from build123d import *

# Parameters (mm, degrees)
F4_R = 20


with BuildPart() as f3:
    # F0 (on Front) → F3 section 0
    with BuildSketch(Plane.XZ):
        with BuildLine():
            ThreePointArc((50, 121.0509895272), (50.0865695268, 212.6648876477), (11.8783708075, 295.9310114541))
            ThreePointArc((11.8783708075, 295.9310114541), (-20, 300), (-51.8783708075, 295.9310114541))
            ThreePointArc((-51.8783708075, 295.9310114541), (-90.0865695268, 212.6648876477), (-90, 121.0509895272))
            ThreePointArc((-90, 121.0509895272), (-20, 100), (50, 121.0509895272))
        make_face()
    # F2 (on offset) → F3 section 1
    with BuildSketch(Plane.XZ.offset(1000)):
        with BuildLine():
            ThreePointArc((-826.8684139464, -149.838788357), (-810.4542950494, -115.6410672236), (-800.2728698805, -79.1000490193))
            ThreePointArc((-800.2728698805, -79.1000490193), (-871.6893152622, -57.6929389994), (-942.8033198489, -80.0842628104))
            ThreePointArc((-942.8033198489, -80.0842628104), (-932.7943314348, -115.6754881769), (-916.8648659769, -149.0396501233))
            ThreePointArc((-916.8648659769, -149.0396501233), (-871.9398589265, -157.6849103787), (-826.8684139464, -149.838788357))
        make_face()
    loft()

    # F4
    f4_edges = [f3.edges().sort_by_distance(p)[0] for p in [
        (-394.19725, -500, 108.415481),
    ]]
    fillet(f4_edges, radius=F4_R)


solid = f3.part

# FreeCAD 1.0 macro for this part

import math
import FreeCAD as App
import Part
import Sketcher


def edges_at(feature, points):
    """Names of the edges that pass closest to the given points."""
    edges = feature.Shape.Edges
    near = lambda p: min(range(len(edges)), key=lambda i: edges[i].distToShape(Part.Vertex(*p))[0])
    return sorted({f"Edge{near(p) + 1}" for p in points})

doc = App.newDocument("Part")
body = doc.addObject("PartDesign::Body", "Body")

sketch1 = body.newObject("Sketcher::SketchObject", "Sketch")
sketch1.AttachmentSupport = (doc.getObject("XZ_Plane"), [""])
sketch1.MapMode = "FlatFace"
sketch1.addGeometry(Part.ArcOfCircle(Part.Circle(App.Vector(-159.142477, 167.055606, 0), App.Vector(0, 0, 1), 214.142477), math.radians(-12.40566), math.radians(37.000417)), False)
sketch1.addGeometry(Part.ArcOfCircle(Part.Circle(App.Vector(-20, 173.090428, 0), App.Vector(0, 0, 1), 126.909572), math.radians(75.452079), math.radians(104.547921)), False)
sketch1.addGeometry(Part.ArcOfCircle(Part.Circle(App.Vector(119.142477, 167.055606, 0), App.Vector(0, 0, 1), 214.142477), math.radians(142.999583), math.radians(192.40566)), False)
sketch1.addGeometry(Part.ArcOfCircle(Part.Circle(App.Vector(-20, 226.909572, 0), App.Vector(0, 0, 1), 126.909572), math.radians(-123.475052), math.radians(-56.524948)), False)
sketch1.addConstraint(Sketcher.Constraint("Coincident", 0, 2, 1, 1))
sketch1.addConstraint(Sketcher.Constraint("Coincident", 1, 2, 2, 1))
sketch1.addConstraint(Sketcher.Constraint("Coincident", 2, 2, 3, 1))
sketch1.addConstraint(Sketcher.Constraint("Coincident", 3, 2, 0, 1))
sketch1.addConstraint(Sketcher.Constraint("Equal", 0, 2))
sketch1.addConstraint(Sketcher.Constraint("Equal", 1, 3))
sketch1.addConstraint(Sketcher.Constraint("Horizontal", 0, 3, 2, 3))
sketch1.addConstraint(Sketcher.Constraint("Horizontal", 0, 2, 1, 2))
sketch1.addConstraint(Sketcher.Constraint("Horizontal", 2, 2, 3, 2))
sketch1.addConstraint(Sketcher.Constraint("DistanceX", 1, 3, -1, 1, 20.0))
sketch1.addConstraint(Sketcher.Constraint("DistanceX", 2, 2, -1, 1, 90.0))
sketch1.addConstraint(Sketcher.Constraint("Radius", 0, 214.142477))
sketch1.addConstraint(Sketcher.Constraint("Radius", 1, 126.909572))
sketch1.addConstraint(Sketcher.Constraint("DistanceX", -1, 1, 0, 2, 11.878371))
sketch1.addConstraint(Sketcher.Constraint("DistanceY", -1, 1, 0, 2, 295.931011))
sketch1.addConstraint(Sketcher.Constraint("DistanceY", -1, 1, 2, 2, 121.05099))

sketch2 = body.newObject("Sketcher::SketchObject", "Sketch001")
sketch2.AttachmentSupport = (doc.getObject("XZ_Plane"), [""])
sketch2.MapMode = "FlatFace"
sketch2.AttachmentOffset = App.Placement(App.Vector(0, 0, 1000), App.Rotation())
sketch2.addGeometry(Part.ArcOfCircle(Part.Circle(App.Vector(-1012.727017, -39.592877, 0), App.Vector(0, 0, 1), 216.096232), math.radians(-30.675184), math.radians(-10.534184)), False)
sketch2.addGeometry(Part.ArcOfCircle(Part.Circle(App.Vector(-870.812989, -184.599486, 0), App.Vector(0, 0, 1), 126.909572), math.radians(56.232113), math.radians(124.559162)), False)
sketch2.addGeometry(Part.ArcOfCircle(Part.Circle(App.Vector(-730.534554, -39.592877, 0), App.Vector(0, 0, 1), 216.096232), math.radians(-169.200273), math.radians(-149.570859)), False)
sketch2.addGeometry(Part.ArcOfCircle(Part.Circle(App.Vector(-870.812989, -30.780341, 0), App.Vector(0, 0, 1), 126.909572), math.radians(-111.276655), math.radians(-69.740853)), False)
sketch2.addConstraint(Sketcher.Constraint("Coincident", 0, 2, 1, 1))
sketch2.addConstraint(Sketcher.Constraint("Coincident", 1, 2, 2, 1))
sketch2.addConstraint(Sketcher.Constraint("Coincident", 2, 2, 3, 1))
sketch2.addConstraint(Sketcher.Constraint("Coincident", 3, 2, 0, 1))
sketch2.addConstraint(Sketcher.Constraint("Equal", 0, 2))
sketch2.addConstraint(Sketcher.Constraint("Equal", 1, 3))
sketch2.addConstraint(Sketcher.Constraint("Horizontal", 0, 3, 2, 3))
sketch2.addConstraint(Sketcher.Constraint("Vertical", 1, 3, 3, 3))
sketch2.addConstraint(Sketcher.Constraint("Radius", 0, 216.096232))
sketch2.addConstraint(Sketcher.Constraint("Radius", 1, 126.909572))
sketch2.addConstraint(Sketcher.Constraint("DistanceY", 2, 2, 0, 2, 69.939601))
sketch2.addConstraint(Sketcher.Constraint("DistanceX", 1, 3, -1, 1, 870.812989))
sketch2.addConstraint(Sketcher.Constraint("DistanceY", 3, 3, -1, 1, 30.780341))
sketch2.addConstraint(Sketcher.Constraint("DistanceX", 0, 2, -1, 1, 800.27287))
sketch2.addConstraint(Sketcher.Constraint("DistanceY", 0, 2, -1, 1, 79.100049))
sketch2.addConstraint(Sketcher.Constraint("DistanceX", 1, 2, -1, 1, 942.80332))

additiveloft = body.newObject("PartDesign::AdditiveLoft", "AdditiveLoft")
additiveloft.Profile = sketch1
additiveloft.Sections = [sketch2]
doc.recompute()

fillet = body.newObject("PartDesign::Fillet", "Fillet")
fillet.Base = (additiveloft, edges_at(additiveloft, [(-394.197, -500, 108.415)]))
fillet.Radius = 20

doc.recompute()
